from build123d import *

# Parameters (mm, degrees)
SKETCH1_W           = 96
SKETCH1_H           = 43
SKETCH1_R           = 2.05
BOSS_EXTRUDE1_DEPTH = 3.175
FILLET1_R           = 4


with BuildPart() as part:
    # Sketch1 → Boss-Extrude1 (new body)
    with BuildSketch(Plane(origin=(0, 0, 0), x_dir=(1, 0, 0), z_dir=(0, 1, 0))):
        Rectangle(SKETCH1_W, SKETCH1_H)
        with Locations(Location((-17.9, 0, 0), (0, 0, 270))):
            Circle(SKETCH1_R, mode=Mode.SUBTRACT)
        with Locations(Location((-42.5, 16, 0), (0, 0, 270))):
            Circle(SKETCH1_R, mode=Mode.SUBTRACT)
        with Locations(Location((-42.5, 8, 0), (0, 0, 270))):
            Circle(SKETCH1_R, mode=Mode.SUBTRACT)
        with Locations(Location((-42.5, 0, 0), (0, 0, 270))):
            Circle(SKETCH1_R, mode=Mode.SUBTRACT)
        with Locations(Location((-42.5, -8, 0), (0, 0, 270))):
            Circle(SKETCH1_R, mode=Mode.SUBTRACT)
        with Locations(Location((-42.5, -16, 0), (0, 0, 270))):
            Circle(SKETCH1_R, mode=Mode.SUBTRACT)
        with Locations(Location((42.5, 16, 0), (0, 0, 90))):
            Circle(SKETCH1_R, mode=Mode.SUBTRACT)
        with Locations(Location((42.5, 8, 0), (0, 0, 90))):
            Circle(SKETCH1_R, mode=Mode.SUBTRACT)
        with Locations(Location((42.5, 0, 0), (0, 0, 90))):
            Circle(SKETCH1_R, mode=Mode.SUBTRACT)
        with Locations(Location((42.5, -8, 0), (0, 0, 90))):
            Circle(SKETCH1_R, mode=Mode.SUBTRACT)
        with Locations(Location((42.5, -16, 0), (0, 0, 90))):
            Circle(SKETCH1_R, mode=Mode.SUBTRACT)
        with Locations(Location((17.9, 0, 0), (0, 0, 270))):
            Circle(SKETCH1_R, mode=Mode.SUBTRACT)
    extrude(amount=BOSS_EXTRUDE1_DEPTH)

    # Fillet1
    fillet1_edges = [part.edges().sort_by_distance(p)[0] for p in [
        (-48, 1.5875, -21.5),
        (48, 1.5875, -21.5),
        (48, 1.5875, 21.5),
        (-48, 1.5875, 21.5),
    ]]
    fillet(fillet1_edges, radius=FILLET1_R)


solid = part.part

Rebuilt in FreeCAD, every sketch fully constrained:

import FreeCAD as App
import Part
import Sketcher

V = App.Vector
Q = App.Units.Quantity


def edges_at(feature, points):
    """Names of the edges that pass closest to the given points."""
    edges = feature.Shape.Edges
    near = lambda p: min(range(len(edges)), key=lambda i: edges[i].distToShape(Part.Vertex(*p))[0])
    return sorted({f"Edge{near(p) + 1}" for p in points})

doc = App.newDocument("Part")
body = doc.addObject("PartDesign::Body", "Body")

sketch1 = body.newObject("Sketcher::SketchObject", "Sketch")
sketch1.AttachmentSupport = (doc.getObject("XZ_Plane"), [""])
sketch1.MapMode = "FlatFace"
sketch1.addGeometry([
    Part.LineSegment(V(-48, -21.5, 0), V(-48, 21.5, 0)),
    Part.LineSegment(V(-48, 21.5, 0), V(48, 21.5, 0)),
    Part.LineSegment(V(48, 21.5, 0), V(48, -21.5, 0)),
    Part.LineSegment(V(48, -21.5, 0), V(-48, -21.5, 0)),
    Part.Circle(V(-42.5, 16, 0), V(0, 0, 1), 2),
    Part.Circle(V(-42.5, 8, 0), V(0, 0, 1), 2),
    Part.Circle(V(42.5, 16, 0), V(0, 0, 1), 2),
    Part.Circle(V(42.5, 8, 0), V(0, 0, 1), 2),
    Part.Circle(V(-42.5, 0, 0), V(0, 0, 1), 2),
    Part.Circle(V(-42.5, -8, 0), V(0, 0, 1), 2),
    Part.Circle(V(-17.9, 0, 0), V(0, 0, 1), 2),
    Part.Circle(V(-42.5, -16, 0), V(0, 0, 1), 2),
    Part.Circle(V(17.9, 0, 0), V(0, 0, 1), 2),
    Part.Circle(V(42.5, 0, 0), V(0, 0, 1), 2),
    Part.Circle(V(42.5, -8, 0), V(0, 0, 1), 2),
    Part.Circle(V(42.5, -16, 0), V(0, 0, 1), 2),
], False)
sketch1.addConstraint([
    Sketcher.Constraint("Coincident", 0, 2, 1, 1),
    Sketcher.Constraint("Coincident", 1, 2, 2, 1),
    Sketcher.Constraint("Coincident", 2, 2, 3, 1),
    Sketcher.Constraint("Coincident", 3, 2, 0, 1),
    Sketcher.Constraint("Vertical", 0),
    Sketcher.Constraint("Horizontal", 1),
    Sketcher.Constraint("Vertical", 2),
    Sketcher.Constraint("Horizontal", 3),
    Sketcher.Constraint("Equal", 4, 5),
    Sketcher.Constraint("Equal", 5, 6),
    Sketcher.Constraint("Equal", 6, 7),
    Sketcher.Constraint("Equal", 7, 8),
    Sketcher.Constraint("Equal", 8, 9),
    Sketcher.Constraint("Equal", 9, 10),
    Sketcher.Constraint("Equal", 10, 11),
    Sketcher.Constraint("Equal", 11, 12),
    Sketcher.Constraint("Equal", 12, 13),
    Sketcher.Constraint("Equal", 13, 14),
    Sketcher.Constraint("Equal", 14, 15),
    Sketcher.Constraint("Symmetric", 7, 3, 9, 3, -1, 1),
    Sketcher.Constraint("Symmetric", 6, 3, 11, 3, -1, 1),
    Sketcher.Constraint("Symmetric", 10, 3, 12, 3, -1, 1),
    Sketcher.Constraint("Symmetric", 8, 3, 13, 3, -1, 1),
    Sketcher.Constraint("Symmetric", 5, 3, 14, 3, -1, 1),
    Sketcher.Constraint("Symmetric", 4, 3, 15, 3, -1, 1),
    Sketcher.Constraint("Symmetric", 0, 2, 2, 2, -1, 1),
    Sketcher.Constraint("Symmetric", 4, 3, 6, 3, -2),
    Sketcher.Constraint("Symmetric", 5, 3, 7, 3, -2),
    Sketcher.Constraint("PointOnObject", 8, 3, -1),
    Sketcher.Constraint("PointOnObject", 10, 3, -1),
    Sketcher.Constraint("Vertical", 4, 3, 5, 3),
    Sketcher.Constraint("Vertical", 5, 3, 8, 3),
    Sketcher.Constraint("Diameter", 4, Q("4.1 mm")),
    Sketcher.Constraint("DistanceX", 1, 1, 1, 2, Q("96 mm")),
    Sketcher.Constraint("DistanceY", 0, 1, 0, 2, Q("43 mm")),
    Sketcher.Constraint("DistanceY", -1, 1, 4, 3, Q("16 mm")),
    Sketcher.Constraint("DistanceY", -1, 1, 5, 3, Q("8 mm")),
    Sketcher.Constraint("DistanceX", 4, 3, 6, 3, Q("85 mm")),
    Sketcher.Constraint("DistanceX", 10, 3, -1, 1, Q("17.9 mm")),
])
pad1 = body.newObject("PartDesign::Pad", "Pad")
pad1.Profile = sketch1
pad1.Length = 3.175
pad1.Reversed = True
doc.recompute()

fillet = body.newObject("PartDesign::Fillet", "Fillet")
fillet.Base = (pad1, edges_at(pad1, [
    (-48, 1.587, -21.5),
    (48, 1.587, -21.5),
    (48, 1.587, 21.5),
    (-48, 1.587, 21.5),
]))
fillet.Radius = 4

doc.recompute()
